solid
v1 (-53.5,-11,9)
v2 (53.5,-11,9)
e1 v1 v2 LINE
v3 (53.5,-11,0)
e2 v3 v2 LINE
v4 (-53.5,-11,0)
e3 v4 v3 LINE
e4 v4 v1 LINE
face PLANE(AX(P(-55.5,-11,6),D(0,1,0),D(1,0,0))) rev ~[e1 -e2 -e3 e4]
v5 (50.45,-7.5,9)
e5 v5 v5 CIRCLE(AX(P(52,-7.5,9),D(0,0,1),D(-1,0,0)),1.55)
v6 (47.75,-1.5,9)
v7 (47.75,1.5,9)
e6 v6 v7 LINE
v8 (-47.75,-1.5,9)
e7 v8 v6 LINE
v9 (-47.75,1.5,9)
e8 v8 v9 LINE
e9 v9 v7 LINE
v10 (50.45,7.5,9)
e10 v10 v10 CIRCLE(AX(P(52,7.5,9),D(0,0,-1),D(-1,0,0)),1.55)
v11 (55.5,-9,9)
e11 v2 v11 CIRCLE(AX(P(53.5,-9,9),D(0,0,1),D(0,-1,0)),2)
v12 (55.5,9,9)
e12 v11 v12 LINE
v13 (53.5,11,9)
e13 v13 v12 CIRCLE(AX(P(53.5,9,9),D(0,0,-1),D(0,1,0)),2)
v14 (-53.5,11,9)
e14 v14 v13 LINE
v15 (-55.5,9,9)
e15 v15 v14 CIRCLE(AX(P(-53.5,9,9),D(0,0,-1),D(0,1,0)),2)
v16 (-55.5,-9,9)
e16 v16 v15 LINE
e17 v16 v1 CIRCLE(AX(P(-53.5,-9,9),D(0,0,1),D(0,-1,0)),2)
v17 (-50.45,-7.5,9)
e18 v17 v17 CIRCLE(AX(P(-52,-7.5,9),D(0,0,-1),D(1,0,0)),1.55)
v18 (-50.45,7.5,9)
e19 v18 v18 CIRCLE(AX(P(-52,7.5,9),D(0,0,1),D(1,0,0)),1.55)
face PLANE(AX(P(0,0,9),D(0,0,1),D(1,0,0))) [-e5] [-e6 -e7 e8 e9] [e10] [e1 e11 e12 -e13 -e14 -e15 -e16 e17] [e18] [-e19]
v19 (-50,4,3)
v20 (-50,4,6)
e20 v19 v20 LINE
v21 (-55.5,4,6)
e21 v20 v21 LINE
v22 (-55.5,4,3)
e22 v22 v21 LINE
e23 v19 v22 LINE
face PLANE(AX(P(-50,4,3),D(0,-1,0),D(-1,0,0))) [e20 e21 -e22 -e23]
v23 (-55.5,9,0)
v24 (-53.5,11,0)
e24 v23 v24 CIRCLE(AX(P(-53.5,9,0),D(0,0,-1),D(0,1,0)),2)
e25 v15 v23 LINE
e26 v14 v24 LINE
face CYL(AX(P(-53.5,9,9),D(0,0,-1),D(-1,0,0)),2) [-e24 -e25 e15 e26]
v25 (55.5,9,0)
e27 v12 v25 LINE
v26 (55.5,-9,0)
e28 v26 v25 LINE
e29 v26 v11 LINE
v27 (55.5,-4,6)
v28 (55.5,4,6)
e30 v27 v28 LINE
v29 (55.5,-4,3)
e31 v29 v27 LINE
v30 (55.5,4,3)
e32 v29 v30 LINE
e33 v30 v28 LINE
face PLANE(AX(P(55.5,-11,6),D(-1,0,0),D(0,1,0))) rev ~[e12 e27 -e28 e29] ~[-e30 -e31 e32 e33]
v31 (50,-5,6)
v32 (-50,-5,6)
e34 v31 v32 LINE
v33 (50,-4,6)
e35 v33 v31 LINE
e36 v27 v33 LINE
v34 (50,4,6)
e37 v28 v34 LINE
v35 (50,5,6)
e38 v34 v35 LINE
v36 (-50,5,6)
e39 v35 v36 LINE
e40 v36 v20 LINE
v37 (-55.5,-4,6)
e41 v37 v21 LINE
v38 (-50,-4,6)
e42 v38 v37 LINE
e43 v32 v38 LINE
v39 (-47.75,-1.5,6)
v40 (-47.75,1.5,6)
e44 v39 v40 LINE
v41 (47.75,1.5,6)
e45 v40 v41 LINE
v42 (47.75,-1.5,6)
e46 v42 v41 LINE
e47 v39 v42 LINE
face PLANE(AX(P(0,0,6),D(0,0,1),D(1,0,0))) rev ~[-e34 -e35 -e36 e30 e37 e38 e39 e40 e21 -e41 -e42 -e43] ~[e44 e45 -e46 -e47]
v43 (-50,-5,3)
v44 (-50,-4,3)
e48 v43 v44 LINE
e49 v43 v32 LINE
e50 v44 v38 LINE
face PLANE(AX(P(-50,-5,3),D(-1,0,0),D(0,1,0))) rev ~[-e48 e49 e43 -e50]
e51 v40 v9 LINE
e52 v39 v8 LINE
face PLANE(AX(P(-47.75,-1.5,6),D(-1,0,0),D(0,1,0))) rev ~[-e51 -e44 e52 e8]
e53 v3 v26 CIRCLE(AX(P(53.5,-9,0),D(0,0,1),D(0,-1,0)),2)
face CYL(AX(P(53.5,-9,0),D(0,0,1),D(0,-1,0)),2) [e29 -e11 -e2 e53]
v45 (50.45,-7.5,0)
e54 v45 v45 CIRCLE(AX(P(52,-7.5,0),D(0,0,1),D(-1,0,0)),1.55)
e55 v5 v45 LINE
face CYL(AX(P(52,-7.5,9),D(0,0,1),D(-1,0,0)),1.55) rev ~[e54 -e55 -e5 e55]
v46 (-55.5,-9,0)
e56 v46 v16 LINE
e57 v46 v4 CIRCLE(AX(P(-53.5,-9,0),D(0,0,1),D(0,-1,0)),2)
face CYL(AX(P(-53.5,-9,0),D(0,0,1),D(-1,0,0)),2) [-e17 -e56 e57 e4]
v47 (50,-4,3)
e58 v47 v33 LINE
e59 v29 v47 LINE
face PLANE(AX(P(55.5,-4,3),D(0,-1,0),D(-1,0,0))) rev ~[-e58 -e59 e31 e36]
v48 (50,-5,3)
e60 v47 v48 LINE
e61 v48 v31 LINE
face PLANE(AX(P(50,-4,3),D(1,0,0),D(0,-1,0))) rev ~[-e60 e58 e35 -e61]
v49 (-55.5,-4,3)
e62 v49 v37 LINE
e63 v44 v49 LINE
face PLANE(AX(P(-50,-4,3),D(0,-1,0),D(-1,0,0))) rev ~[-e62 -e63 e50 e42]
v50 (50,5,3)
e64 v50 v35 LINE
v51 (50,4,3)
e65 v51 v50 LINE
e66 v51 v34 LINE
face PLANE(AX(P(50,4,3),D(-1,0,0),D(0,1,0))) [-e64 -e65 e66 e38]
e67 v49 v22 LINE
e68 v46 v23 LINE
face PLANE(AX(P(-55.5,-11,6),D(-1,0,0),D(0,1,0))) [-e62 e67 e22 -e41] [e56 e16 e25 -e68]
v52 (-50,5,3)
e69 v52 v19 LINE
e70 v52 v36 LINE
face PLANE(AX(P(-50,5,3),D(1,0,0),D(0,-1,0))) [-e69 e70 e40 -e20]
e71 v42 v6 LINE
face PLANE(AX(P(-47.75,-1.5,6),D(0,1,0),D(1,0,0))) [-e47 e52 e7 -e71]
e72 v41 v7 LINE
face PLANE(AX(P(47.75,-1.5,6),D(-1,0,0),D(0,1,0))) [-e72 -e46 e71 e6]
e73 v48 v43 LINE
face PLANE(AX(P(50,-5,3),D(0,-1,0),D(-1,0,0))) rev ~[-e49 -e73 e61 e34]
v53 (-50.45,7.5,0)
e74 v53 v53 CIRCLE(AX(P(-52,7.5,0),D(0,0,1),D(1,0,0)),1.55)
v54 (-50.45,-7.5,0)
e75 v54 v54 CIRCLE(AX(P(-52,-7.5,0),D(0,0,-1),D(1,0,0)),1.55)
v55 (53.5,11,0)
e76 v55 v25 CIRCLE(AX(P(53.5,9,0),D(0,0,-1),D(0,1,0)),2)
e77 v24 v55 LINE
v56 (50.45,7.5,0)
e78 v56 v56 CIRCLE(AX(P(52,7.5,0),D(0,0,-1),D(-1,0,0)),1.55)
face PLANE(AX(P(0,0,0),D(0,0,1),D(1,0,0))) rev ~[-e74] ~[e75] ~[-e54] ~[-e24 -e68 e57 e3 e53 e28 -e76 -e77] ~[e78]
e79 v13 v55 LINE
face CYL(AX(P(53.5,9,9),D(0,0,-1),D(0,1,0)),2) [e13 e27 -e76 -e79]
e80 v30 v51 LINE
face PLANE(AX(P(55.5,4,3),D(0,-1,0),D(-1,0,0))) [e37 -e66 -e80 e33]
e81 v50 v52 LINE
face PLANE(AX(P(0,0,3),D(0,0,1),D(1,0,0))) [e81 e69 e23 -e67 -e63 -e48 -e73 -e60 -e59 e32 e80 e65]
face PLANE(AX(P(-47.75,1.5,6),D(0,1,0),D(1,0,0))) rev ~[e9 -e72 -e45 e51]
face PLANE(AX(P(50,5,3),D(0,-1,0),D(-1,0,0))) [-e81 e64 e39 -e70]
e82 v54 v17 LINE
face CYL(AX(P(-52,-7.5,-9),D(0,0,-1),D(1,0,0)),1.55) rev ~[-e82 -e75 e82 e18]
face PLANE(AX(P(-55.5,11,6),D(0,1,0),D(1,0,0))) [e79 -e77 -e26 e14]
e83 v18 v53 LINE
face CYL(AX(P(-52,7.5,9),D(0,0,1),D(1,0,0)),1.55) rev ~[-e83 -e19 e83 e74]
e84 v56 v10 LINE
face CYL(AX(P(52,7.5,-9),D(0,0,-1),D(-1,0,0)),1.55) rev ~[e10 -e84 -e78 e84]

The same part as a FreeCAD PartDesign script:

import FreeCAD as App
import Part
import Sketcher

V = App.Vector
Q = App.Units.Quantity


def edges_at(feature, points):
    """Names of the edges that pass closest to the given points."""
    edges = feature.Shape.Edges
    near = lambda p: min(range(len(edges)), key=lambda i: edges[i].distToShape(Part.Vertex(*p))[0])
    return sorted({f"Edge{near(p) + 1}" for p in points})


def add_polygon(sketch, points):
    """Adds a closed chain of lines whose ends are joined by coincident constraints."""
    first, n = sketch.GeometryCount, len(points)
    for a, b in zip(points, points[1:] + points[:1]):
        sketch.addGeometry(Part.LineSegment(App.Vector(*a, 0), App.Vector(*b, 0)), False)
    for i in range(n):
        sketch.addConstraint(Sketcher.Constraint("Coincident", first + i, 2, first + (i + 1) % n, 1))

doc = App.newDocument("Part")
body = doc.addObject("PartDesign::Body", "Body")

# Sketch on XY plane
sketch1 = body.newObject("Sketcher::SketchObject", "Sketch")
sketch1.AttachmentSupport = (doc.getObject("XY_Plane"), [""])
sketch1.MapMode = "FlatFace"
add_polygon(sketch1, [(-56, 11), (-56, -11), (56, -11), (56, 11)])  # lines 0-3
sketch1.addConstraint(Sketcher.Constraint("Vertical", 0))
sketch1.addConstraint(Sketcher.Constraint("Horizontal", 1))
sketch1.addConstraint(Sketcher.Constraint("Vertical", 2))
sketch1.addConstraint(Sketcher.Constraint("Horizontal", 3))
sketch1.addConstraint(Sketcher.Constraint("Symmetric", 0, 2, 2, 2, -1, 1))
sketch1.addConstraint(Sketcher.Constraint("DistanceX", 1, 1, 1, 2, Q("111 mm")))
sketch1.addConstraint(Sketcher.Constraint("DistanceY", 0, 2, 0, 1, Q("22 mm")))
pad1 = body.newObject("PartDesign::Pad", "Pad")
pad1.Profile = sketch1
pad1.Length = 3

# Sketch on XY plane
sketch2 = body.newObject("Sketcher::SketchObject", "Sketch001")
sketch2.AttachmentSupport = (doc.getObject("XY_Plane"), [""])
sketch2.MapMode = "FlatFace"
sketch2.AttachmentOffset = App.Placement(V(0, 0, 3), App.Rotation())
add_polygon(sketch2, [(55.5, 11), (-55.5, 11), (-55.5, 4), (-50, 4), (-50, 5), (50, 5), (50, 4), (55.5, 4)])  # lines 0-7
add_polygon(sketch2, [(-55.5, -11), (55.5, -11), (55.5, -4), (50, -4), (50, -5), (-50, -5), (-50, -4), (-55.5, -4)])  # lines 8-15
sketch2.addConstraint(Sketcher.Constraint("Horizontal", 0))
sketch2.addConstraint(Sketcher.Constraint("Vertical", 1))
sketch2.addConstraint(Sketcher.Constraint("Horizontal", 2))
sketch2.addConstraint(Sketcher.Constraint("Vertical", 3))
sketch2.addConstraint(Sketcher.Constraint("Horizontal", 4))
sketch2.addConstraint(Sketcher.Constraint("Vertical", 5))
sketch2.addConstraint(Sketcher.Constraint("Horizontal", 6))
sketch2.addConstraint(Sketcher.Constraint("Vertical", 7))
sketch2.addConstraint(Sketcher.Constraint("Horizontal", 8))
sketch2.addConstraint(Sketcher.Constraint("Vertical", 9))
sketch2.addConstraint(Sketcher.Constraint("Horizontal", 10))
sketch2.addConstraint(Sketcher.Constraint("Vertical", 11))
sketch2.addConstraint(Sketcher.Constraint("Horizontal", 12))
sketch2.addConstraint(Sketcher.Constraint("Vertical", 13))
sketch2.addConstraint(Sketcher.Constraint("Horizontal", 14))
sketch2.addConstraint(Sketcher.Constraint("Vertical", 15))
sketch2.addConstraint(Sketcher.Constraint("Symmetric", 0, 2, 8, 2, -1, 1))
sketch2.addConstraint(Sketcher.Constraint("Symmetric", 2, 2, 10, 2, -1, 1))
sketch2.addConstraint(Sketcher.Constraint("Symmetric", 4, 2, 12, 2, -1, 1))
sketch2.addConstraint(Sketcher.Constraint("Symmetric", 6, 2, 14, 2, -1, 1))
sketch2.addConstraint(Sketcher.Constraint("Symmetric", 2, 2, 5, 2, -2))
sketch2.addConstraint(Sketcher.Constraint("Vertical", 7, 2, 8, 2))
sketch2.addConstraint(Sketcher.Constraint("DistanceX", 0, 2, 0, 1, Q("111 mm")))
sketch2.addConstraint(Sketcher.Constraint("DistanceX", 4, 1, 4, 2, Q("100 mm")))
sketch2.addConstraint(Sketcher.Constraint("DistanceY", 1, 2, 1, 1, Q("7 mm")))
sketch2.addConstraint(Sketcher.Constraint("DistanceY", 3, 1, 3, 2, Q("1 mm")))
sketch2.addConstraint(Sketcher.Constraint("DistanceY", -1, 1, 0, 2, Q("11 mm")))
pad2 = body.newObject("PartDesign::Pad", "Pad001")
pad2.Profile = sketch2
pad2.Length = 3

# Sketch on XY plane
sketch3 = body.newObject("Sketcher::SketchObject", "Sketch002")
sketch3.AttachmentSupport = (doc.getObject("XY_Plane"), [""])
sketch3.MapMode = "FlatFace"
sketch3.AttachmentOffset = App.Placement(V(0, 0, 6), App.Rotation())
add_polygon(sketch3, [(-55.5, 11), (-55.5, -11), (55.5, -11), (55.5, 11)])  # lines 0-3
add_polygon(sketch3, [(47.8, -1.5), (-47.8, -1.5), (-47.8, 1.5), (47.8, 1.5)])  # lines 4-7
sketch3.addConstraint(Sketcher.Constraint("Vertical", 0))
sketch3.addConstraint(Sketcher.Constraint("Horizontal", 1))
sketch3.addConstraint(Sketcher.Constraint("Vertical", 2))
sketch3.addConstraint(Sketcher.Constraint("Horizontal", 3))
sketch3.addConstraint(Sketcher.Constraint("Horizontal", 4))
sketch3.addConstraint(Sketcher.Constraint("Vertical", 5))
sketch3.addConstraint(Sketcher.Constraint("Horizontal", 6))
sketch3.addConstraint(Sketcher.Constraint("Vertical", 7))
sketch3.addConstraint(Sketcher.Constraint("Symmetric", 0, 2, 2, 2, -1, 1))
sketch3.addConstraint(Sketcher.Constraint("Symmetric", 4, 2, 6, 2, -1, 1))
sketch3.addConstraint(Sketcher.Constraint("DistanceX", 1, 1, 1, 2, Q("111 mm")))
sketch3.addConstraint(Sketcher.Constraint("DistanceY", 0, 2, 0, 1, Q("22 mm")))
sketch3.addConstraint(Sketcher.Constraint("DistanceY", 5, 1, 5, 2, Q("3 mm")))
sketch3.addConstraint(Sketcher.Constraint("DistanceX", 4, 2, 4, 1, Q("95.5 mm")))
pad3 = body.newObject("PartDesign::Pad", "Pad002")
pad3.Profile = sketch3
pad3.Length = 3

# Sketch on XY plane
sketch4 = body.newObject("Sketcher::SketchObject", "Sketch003")
sketch4.AttachmentSupport = (doc.getObject("XY_Plane"), [""])
sketch4.MapMode = "FlatFace"
sketch4.AttachmentOffset = App.Placement(V(0, 0, 9), App.Rotation())
sketch4.addGeometry(Part.Circle(V(-52, 7.5, 0), V(0, 0, 1), 1.6), False)
sketch4.addConstraint(Sketcher.Constraint("Diameter", 0, Q("3.1 mm")))
sketch4.addConstraint(Sketcher.Constraint("DistanceX", 0, 3, -1, 1, Q("52 mm")))
sketch4.addConstraint(Sketcher.Constraint("DistanceY", -1, 1, 0, 3, Q("7.5 mm")))
pocket1 = body.newObject("PartDesign::Pocket", "Pocket")
pocket1.Profile = sketch4
pocket1.Type = "ThroughAll"
doc.recompute()

polarpattern = body.newObject("PartDesign::PolarPattern", "PolarPattern")
polarpattern.Originals = [pocket1]
polarpattern.Axis = (doc.getObject("Y_Axis"), [""])
polarpattern.Angle = 360
polarpattern.Occurrences = 2
body.Tip = polarpattern
doc.recompute()

polarpattern2 = body.newObject("PartDesign::PolarPattern", "PolarPattern001")
polarpattern2.Originals = [pocket1]
polarpattern2.Axis = (doc.getObject("X_Axis"), [""])
polarpattern2.Angle = 360
polarpattern2.Occurrences = 2
body.Tip = polarpattern2
doc.recompute()

polarpattern3 = body.newObject("PartDesign::PolarPattern", "PolarPattern002")
polarpattern3.Originals = [pocket1]
polarpattern3.Axis = (doc.getObject("Z_Axis"), [""])
polarpattern3.Angle = 360
polarpattern3.Occurrences = 2
body.Tip = polarpattern3
doc.recompute()

fillet = body.newObject("PartDesign::Fillet", "Fillet")
fillet.Base = (polarpattern3, edges_at(polarpattern3, [
    (55.5, 11, 4.5),
    (55.5, 11, 4.5),
    (55.5, 11, 4.5),
    (55.5, -11, 4.5),
    (-55.5, 11, 4.5),
    (-55.5, -11, 4.5),
]))
fillet.Radius = 2

doc.recompute()
